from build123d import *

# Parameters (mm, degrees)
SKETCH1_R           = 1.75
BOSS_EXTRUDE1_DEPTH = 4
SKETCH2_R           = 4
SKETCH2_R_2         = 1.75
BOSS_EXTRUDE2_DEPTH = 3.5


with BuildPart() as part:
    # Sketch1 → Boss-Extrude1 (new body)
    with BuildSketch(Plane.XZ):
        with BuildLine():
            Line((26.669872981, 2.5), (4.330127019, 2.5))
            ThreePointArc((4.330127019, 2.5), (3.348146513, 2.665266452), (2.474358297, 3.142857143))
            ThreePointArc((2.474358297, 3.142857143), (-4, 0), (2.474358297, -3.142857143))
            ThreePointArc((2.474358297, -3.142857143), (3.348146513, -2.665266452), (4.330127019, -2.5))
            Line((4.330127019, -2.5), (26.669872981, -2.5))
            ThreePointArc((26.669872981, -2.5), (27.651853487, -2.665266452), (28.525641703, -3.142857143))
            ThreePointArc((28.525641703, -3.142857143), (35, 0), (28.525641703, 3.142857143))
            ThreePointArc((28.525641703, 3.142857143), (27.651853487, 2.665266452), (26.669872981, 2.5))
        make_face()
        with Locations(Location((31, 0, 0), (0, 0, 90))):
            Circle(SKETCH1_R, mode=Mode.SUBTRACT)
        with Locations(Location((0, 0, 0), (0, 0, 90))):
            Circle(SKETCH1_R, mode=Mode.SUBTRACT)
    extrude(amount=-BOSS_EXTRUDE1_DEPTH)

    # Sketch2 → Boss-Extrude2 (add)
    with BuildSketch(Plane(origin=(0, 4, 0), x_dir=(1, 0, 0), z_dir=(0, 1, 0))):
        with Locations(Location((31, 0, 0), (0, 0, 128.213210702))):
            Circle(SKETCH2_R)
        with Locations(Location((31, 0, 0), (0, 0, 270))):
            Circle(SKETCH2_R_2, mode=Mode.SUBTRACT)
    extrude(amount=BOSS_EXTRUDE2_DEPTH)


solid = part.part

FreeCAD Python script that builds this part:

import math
import FreeCAD as App
import Part
import Sketcher
Q = App.Units.Quantity

doc = App.newDocument("Part")
body = doc.addObject("PartDesign::Body", "Body")

# Sketch on XZ plane
sketch1 = body.newObject("Sketcher::SketchObject", "Sketch")
sketch1.AttachmentSupport = (doc.getObject("XZ_Plane"), [""])
sketch1.MapMode = "FlatFace"
sketch1.addGeometry(Part.LineSegment(App.Vector(26.7, 2.5, 0), App.Vector(4.3, 2.5, 0)), False)
sketch1.addGeometry(Part.ArcOfCircle(Part.Circle(App.Vector(4.3, 5.5, 0), App.Vector(0, 0, 1), 3), math.radians(-128), math.radians(-90)), False)
sketch1.addGeometry(Part.ArcOfCircle(Part.Circle(App.Vector(0, 0, 0), App.Vector(0, 0, 1), 4), math.radians(52), math.radians(308)), False)
sketch1.addGeometry(Part.ArcOfCircle(Part.Circle(App.Vector(4.3, -5.5, 0), App.Vector(0, 0, 1), 3), math.radians(90), math.radians(128)), False)
sketch1.addGeometry(Part.LineSegment(App.Vector(4.3, -2.5, 0), App.Vector(26.7, -2.5, 0)), False)
sketch1.addGeometry(Part.ArcOfCircle(Part.Circle(App.Vector(26.7, -5.5, 0), App.Vector(0, 0, 1), 3), math.radians(52), math.radians(90)), False)
sketch1.addGeometry(Part.ArcOfCircle(Part.Circle(App.Vector(31, 0, 0), App.Vector(0, 0, 1), 4), math.radians(-128), math.radians(128)), False)
sketch1.addGeometry(Part.ArcOfCircle(Part.Circle(App.Vector(26.7, 5.5, 0), App.Vector(0, 0, 1), 3), math.radians(-90), math.radians(-52)), False)
sketch1.addGeometry(Part.Circle(App.Vector(0, 0, 0), App.Vector(0, 0, 1), 1.8), False)
sketch1.addGeometry(Part.Circle(App.Vector(31, 0, 0), App.Vector(0, 0, 1), 1.8), False)
sketch1.addConstraint(Sketcher.Constraint("Tangent", 0, 2, 1, 2))
sketch1.addConstraint(Sketcher.Constraint("Tangent", 1, 1, 2, 1))
sketch1.addConstraint(Sketcher.Constraint("Tangent", 2, 2, 3, 2))
sketch1.addConstraint(Sketcher.Constraint("Tangent", 3, 1, 4, 1))
sketch1.addConstraint(Sketcher.Constraint("Tangent", 4, 2, 5, 2))
sketch1.addConstraint(Sketcher.Constraint("Tangent", 5, 1, 6, 1))
sketch1.addConstraint(Sketcher.Constraint("Tangent", 6, 2, 7, 2))
sketch1.addConstraint(Sketcher.Constraint("Tangent", 7, 1, 0, 1))
sketch1.addConstraint(Sketcher.Constraint("Horizontal", 0))
sketch1.addConstraint(Sketcher.Constraint("Horizontal", 4))
sketch1.addConstraint(Sketcher.Constraint("Coincident", 2, 3, -1, 1))
sketch1.addConstraint(Sketcher.Constraint("Coincident", 8, 3, -1, 1))
sketch1.addConstraint(Sketcher.Constraint("Coincident", 9, 3, 6, 3))
sketch1.addConstraint(Sketcher.Constraint("Equal", 1, 3))
sketch1.addConstraint(Sketcher.Constraint("Equal", 3, 5))
sketch1.addConstraint(Sketcher.Constraint("Equal", 2, 6))
sketch1.addConstraint(Sketcher.Constraint("Equal", 5, 7))
sketch1.addConstraint(Sketcher.Constraint("Equal", 8, 9))
sketch1.addConstraint(Sketcher.Constraint("Symmetric", 5, 3, 7, 3, -1))
sketch1.addConstraint(Sketcher.Constraint("Radius", 1, Q("3 mm")))
sketch1.addConstraint(Sketcher.Constraint("Radius", 2, Q("4 mm")))
sketch1.addConstraint(Sketcher.Constraint("Diameter", 8, Q("3.5 mm")))
sketch1.addConstraint(Sketcher.Constraint("DistanceX", -1, 1, 6, 3, Q("31 mm")))
sketch1.addConstraint(Sketcher.Constraint("DistanceY", 3, 3, 1, 3, Q("11 mm")))
pad1 = body.newObject("PartDesign::Pad", "Pad")
pad1.Profile = sketch1
pad1.Length = 4
pad1.Reversed = True

# Sketch on XZ plane
sketch2 = body.newObject("Sketcher::SketchObject", "Sketch001")
sketch2.AttachmentSupport = (doc.getObject("XZ_Plane"), [""])
sketch2.MapMode = "FlatFace"
sketch2.AttachmentOffset = App.Placement(App.Vector(0, 0, -4), App.Rotation())
sketch2.addGeometry(Part.Circle(App.Vector(31, 0, 0), App.Vector(0, 0, 1), 4), False)
sketch2.addGeometry(Part.Circle(App.Vector(31, 0, 0), App.Vector(0, 0, 1), 1.8), False)
sketch2.addConstraint(Sketcher.Constraint("Coincident", 1, 3, 0, 3))
sketch2.addConstraint(Sketcher.Constraint("PointOnObject", 0, 3, -1))
sketch2.addConstraint(Sketcher.Constraint("Diameter", 0, Q("8 mm")))
sketch2.addConstraint(Sketcher.Constraint("Diameter", 1, Q("3.5 mm")))
sketch2.addConstraint(Sketcher.Constraint("DistanceX", -1, 1, 0, 3, Q("31 mm")))
pad2 = body.newObject("PartDesign::Pad", "Pad001")
pad2.Profile = sketch2
pad2.Length = 3.5
pad2.Reversed = True

doc.recompute()
